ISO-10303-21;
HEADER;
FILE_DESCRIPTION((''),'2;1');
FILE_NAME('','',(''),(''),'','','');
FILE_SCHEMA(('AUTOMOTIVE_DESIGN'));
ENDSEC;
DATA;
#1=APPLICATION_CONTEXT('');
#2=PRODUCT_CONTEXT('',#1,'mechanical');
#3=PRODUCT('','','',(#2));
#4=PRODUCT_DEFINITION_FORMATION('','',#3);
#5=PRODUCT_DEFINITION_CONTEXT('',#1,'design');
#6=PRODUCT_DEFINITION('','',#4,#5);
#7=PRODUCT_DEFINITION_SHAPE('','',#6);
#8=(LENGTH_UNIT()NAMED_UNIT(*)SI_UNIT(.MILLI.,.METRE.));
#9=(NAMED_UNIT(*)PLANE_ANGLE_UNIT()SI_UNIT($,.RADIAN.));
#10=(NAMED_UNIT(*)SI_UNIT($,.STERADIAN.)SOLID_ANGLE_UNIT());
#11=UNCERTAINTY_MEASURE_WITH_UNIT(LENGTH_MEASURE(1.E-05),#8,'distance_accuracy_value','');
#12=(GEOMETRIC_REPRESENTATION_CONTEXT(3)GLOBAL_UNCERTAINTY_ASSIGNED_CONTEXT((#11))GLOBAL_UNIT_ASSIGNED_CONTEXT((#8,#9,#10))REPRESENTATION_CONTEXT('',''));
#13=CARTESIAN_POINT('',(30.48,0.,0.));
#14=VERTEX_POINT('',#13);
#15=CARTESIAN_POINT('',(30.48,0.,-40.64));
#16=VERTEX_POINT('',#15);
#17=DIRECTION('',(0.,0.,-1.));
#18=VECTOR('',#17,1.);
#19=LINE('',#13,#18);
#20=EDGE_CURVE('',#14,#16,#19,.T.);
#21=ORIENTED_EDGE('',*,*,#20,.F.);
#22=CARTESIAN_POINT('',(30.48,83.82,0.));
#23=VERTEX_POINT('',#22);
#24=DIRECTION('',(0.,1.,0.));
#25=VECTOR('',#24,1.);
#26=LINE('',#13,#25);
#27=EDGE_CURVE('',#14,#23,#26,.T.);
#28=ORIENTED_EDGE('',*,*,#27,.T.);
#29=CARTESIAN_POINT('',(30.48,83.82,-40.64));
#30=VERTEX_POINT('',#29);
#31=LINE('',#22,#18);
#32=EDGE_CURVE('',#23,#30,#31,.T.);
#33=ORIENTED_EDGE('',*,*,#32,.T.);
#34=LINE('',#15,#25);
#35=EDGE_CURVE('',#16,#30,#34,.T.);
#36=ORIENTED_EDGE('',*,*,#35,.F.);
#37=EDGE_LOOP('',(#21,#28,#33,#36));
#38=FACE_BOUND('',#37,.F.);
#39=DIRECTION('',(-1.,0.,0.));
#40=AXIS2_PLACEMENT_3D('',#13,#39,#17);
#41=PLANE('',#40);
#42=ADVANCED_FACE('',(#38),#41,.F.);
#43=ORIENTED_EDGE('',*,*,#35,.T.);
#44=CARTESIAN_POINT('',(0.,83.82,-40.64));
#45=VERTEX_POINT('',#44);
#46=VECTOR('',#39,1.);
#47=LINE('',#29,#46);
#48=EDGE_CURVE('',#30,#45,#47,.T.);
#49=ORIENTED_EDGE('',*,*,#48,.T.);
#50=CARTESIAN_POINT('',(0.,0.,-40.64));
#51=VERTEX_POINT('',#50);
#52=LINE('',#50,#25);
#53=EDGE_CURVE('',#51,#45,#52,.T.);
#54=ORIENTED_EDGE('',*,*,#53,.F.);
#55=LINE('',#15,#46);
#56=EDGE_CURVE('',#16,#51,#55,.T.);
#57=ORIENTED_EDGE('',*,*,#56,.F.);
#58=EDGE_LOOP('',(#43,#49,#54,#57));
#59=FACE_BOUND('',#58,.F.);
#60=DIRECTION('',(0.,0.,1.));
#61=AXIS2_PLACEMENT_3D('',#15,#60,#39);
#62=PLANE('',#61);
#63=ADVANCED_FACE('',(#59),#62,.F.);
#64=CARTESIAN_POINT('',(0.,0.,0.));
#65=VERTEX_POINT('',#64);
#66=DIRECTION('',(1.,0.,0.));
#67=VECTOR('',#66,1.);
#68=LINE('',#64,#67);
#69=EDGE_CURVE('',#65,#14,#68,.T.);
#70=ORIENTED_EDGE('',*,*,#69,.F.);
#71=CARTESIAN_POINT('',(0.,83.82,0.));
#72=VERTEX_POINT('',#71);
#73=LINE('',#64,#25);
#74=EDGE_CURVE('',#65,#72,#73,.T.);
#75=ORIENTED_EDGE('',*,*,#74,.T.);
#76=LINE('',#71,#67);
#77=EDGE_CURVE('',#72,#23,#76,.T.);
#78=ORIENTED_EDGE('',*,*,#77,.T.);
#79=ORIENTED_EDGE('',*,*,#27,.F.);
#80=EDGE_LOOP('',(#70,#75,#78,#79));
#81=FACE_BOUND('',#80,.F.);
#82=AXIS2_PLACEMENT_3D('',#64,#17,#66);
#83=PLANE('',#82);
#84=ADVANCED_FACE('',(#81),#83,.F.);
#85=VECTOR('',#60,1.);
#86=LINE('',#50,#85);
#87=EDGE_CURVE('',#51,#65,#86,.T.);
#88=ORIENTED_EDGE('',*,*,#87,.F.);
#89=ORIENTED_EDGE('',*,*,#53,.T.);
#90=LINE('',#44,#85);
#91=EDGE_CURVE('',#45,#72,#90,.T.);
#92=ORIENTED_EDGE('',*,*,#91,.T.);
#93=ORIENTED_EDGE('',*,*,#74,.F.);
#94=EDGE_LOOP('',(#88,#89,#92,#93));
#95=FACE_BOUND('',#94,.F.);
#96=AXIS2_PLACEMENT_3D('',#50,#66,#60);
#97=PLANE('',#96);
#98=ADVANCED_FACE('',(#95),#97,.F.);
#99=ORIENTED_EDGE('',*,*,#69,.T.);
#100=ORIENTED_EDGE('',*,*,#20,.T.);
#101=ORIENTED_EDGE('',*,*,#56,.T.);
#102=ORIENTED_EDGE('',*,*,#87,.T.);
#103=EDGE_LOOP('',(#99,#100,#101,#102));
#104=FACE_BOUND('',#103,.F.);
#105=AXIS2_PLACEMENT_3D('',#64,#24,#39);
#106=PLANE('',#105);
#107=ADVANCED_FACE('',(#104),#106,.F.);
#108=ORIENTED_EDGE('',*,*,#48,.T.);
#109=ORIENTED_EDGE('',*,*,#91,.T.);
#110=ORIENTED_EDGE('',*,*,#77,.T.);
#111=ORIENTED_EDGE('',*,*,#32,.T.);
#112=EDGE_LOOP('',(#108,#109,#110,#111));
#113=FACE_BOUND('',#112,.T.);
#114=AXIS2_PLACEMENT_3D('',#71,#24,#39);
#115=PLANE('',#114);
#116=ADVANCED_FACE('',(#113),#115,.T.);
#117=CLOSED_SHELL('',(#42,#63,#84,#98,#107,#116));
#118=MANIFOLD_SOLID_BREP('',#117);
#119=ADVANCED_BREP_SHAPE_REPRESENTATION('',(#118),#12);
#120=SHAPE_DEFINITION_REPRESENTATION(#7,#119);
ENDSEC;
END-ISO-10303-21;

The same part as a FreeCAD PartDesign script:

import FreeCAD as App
import Part
import Sketcher
Q = App.Units.Quantity


def add_polygon(sketch, points):
    """Adds a closed chain of lines whose ends are joined by coincident constraints."""
    first, n = sketch.GeometryCount, len(points)
    for a, b in zip(points, points[1:] + points[:1]):
        sketch.addGeometry(Part.LineSegment(App.Vector(*a, 0), App.Vector(*b, 0)), False)
    for i in range(n):
        sketch.addConstraint(Sketcher.Constraint("Coincident", first + i, 2, first + (i + 1) % n, 1))

doc = App.newDocument("Part")
body = doc.addObject("PartDesign::Body", "Body")

# Sketch on XZ plane
sketch1 = body.newObject("Sketcher::SketchObject", "Sketch")
sketch1.AttachmentSupport = (doc.getObject("XZ_Plane"), [""])
sketch1.MapMode = "FlatFace"
add_polygon(sketch1, [(0, -41), (0, 0), (30, 0), (30, -41)])  # lines 0-3
sketch1.addConstraint([
    Sketcher.Constraint("Vertical", 0),
    Sketcher.Constraint("Horizontal", 1),
    Sketcher.Constraint("Vertical", 2),
    Sketcher.Constraint("Horizontal", 3),
    Sketcher.Constraint("Coincident", 0, 2, -1, 1),
    Sketcher.Constraint("DistanceX", 1, 1, 1, 2, Q("1.2 in")),
    Sketcher.Constraint("DistanceY", 0, 1, 0, 2, Q("1.6 in")),
])
pad1 = body.newObject("PartDesign::Pad", "Pad")
pad1.Profile = sketch1
pad1.Length = Q("3.3 in")
pad1.Reversed = True

doc.recompute()
